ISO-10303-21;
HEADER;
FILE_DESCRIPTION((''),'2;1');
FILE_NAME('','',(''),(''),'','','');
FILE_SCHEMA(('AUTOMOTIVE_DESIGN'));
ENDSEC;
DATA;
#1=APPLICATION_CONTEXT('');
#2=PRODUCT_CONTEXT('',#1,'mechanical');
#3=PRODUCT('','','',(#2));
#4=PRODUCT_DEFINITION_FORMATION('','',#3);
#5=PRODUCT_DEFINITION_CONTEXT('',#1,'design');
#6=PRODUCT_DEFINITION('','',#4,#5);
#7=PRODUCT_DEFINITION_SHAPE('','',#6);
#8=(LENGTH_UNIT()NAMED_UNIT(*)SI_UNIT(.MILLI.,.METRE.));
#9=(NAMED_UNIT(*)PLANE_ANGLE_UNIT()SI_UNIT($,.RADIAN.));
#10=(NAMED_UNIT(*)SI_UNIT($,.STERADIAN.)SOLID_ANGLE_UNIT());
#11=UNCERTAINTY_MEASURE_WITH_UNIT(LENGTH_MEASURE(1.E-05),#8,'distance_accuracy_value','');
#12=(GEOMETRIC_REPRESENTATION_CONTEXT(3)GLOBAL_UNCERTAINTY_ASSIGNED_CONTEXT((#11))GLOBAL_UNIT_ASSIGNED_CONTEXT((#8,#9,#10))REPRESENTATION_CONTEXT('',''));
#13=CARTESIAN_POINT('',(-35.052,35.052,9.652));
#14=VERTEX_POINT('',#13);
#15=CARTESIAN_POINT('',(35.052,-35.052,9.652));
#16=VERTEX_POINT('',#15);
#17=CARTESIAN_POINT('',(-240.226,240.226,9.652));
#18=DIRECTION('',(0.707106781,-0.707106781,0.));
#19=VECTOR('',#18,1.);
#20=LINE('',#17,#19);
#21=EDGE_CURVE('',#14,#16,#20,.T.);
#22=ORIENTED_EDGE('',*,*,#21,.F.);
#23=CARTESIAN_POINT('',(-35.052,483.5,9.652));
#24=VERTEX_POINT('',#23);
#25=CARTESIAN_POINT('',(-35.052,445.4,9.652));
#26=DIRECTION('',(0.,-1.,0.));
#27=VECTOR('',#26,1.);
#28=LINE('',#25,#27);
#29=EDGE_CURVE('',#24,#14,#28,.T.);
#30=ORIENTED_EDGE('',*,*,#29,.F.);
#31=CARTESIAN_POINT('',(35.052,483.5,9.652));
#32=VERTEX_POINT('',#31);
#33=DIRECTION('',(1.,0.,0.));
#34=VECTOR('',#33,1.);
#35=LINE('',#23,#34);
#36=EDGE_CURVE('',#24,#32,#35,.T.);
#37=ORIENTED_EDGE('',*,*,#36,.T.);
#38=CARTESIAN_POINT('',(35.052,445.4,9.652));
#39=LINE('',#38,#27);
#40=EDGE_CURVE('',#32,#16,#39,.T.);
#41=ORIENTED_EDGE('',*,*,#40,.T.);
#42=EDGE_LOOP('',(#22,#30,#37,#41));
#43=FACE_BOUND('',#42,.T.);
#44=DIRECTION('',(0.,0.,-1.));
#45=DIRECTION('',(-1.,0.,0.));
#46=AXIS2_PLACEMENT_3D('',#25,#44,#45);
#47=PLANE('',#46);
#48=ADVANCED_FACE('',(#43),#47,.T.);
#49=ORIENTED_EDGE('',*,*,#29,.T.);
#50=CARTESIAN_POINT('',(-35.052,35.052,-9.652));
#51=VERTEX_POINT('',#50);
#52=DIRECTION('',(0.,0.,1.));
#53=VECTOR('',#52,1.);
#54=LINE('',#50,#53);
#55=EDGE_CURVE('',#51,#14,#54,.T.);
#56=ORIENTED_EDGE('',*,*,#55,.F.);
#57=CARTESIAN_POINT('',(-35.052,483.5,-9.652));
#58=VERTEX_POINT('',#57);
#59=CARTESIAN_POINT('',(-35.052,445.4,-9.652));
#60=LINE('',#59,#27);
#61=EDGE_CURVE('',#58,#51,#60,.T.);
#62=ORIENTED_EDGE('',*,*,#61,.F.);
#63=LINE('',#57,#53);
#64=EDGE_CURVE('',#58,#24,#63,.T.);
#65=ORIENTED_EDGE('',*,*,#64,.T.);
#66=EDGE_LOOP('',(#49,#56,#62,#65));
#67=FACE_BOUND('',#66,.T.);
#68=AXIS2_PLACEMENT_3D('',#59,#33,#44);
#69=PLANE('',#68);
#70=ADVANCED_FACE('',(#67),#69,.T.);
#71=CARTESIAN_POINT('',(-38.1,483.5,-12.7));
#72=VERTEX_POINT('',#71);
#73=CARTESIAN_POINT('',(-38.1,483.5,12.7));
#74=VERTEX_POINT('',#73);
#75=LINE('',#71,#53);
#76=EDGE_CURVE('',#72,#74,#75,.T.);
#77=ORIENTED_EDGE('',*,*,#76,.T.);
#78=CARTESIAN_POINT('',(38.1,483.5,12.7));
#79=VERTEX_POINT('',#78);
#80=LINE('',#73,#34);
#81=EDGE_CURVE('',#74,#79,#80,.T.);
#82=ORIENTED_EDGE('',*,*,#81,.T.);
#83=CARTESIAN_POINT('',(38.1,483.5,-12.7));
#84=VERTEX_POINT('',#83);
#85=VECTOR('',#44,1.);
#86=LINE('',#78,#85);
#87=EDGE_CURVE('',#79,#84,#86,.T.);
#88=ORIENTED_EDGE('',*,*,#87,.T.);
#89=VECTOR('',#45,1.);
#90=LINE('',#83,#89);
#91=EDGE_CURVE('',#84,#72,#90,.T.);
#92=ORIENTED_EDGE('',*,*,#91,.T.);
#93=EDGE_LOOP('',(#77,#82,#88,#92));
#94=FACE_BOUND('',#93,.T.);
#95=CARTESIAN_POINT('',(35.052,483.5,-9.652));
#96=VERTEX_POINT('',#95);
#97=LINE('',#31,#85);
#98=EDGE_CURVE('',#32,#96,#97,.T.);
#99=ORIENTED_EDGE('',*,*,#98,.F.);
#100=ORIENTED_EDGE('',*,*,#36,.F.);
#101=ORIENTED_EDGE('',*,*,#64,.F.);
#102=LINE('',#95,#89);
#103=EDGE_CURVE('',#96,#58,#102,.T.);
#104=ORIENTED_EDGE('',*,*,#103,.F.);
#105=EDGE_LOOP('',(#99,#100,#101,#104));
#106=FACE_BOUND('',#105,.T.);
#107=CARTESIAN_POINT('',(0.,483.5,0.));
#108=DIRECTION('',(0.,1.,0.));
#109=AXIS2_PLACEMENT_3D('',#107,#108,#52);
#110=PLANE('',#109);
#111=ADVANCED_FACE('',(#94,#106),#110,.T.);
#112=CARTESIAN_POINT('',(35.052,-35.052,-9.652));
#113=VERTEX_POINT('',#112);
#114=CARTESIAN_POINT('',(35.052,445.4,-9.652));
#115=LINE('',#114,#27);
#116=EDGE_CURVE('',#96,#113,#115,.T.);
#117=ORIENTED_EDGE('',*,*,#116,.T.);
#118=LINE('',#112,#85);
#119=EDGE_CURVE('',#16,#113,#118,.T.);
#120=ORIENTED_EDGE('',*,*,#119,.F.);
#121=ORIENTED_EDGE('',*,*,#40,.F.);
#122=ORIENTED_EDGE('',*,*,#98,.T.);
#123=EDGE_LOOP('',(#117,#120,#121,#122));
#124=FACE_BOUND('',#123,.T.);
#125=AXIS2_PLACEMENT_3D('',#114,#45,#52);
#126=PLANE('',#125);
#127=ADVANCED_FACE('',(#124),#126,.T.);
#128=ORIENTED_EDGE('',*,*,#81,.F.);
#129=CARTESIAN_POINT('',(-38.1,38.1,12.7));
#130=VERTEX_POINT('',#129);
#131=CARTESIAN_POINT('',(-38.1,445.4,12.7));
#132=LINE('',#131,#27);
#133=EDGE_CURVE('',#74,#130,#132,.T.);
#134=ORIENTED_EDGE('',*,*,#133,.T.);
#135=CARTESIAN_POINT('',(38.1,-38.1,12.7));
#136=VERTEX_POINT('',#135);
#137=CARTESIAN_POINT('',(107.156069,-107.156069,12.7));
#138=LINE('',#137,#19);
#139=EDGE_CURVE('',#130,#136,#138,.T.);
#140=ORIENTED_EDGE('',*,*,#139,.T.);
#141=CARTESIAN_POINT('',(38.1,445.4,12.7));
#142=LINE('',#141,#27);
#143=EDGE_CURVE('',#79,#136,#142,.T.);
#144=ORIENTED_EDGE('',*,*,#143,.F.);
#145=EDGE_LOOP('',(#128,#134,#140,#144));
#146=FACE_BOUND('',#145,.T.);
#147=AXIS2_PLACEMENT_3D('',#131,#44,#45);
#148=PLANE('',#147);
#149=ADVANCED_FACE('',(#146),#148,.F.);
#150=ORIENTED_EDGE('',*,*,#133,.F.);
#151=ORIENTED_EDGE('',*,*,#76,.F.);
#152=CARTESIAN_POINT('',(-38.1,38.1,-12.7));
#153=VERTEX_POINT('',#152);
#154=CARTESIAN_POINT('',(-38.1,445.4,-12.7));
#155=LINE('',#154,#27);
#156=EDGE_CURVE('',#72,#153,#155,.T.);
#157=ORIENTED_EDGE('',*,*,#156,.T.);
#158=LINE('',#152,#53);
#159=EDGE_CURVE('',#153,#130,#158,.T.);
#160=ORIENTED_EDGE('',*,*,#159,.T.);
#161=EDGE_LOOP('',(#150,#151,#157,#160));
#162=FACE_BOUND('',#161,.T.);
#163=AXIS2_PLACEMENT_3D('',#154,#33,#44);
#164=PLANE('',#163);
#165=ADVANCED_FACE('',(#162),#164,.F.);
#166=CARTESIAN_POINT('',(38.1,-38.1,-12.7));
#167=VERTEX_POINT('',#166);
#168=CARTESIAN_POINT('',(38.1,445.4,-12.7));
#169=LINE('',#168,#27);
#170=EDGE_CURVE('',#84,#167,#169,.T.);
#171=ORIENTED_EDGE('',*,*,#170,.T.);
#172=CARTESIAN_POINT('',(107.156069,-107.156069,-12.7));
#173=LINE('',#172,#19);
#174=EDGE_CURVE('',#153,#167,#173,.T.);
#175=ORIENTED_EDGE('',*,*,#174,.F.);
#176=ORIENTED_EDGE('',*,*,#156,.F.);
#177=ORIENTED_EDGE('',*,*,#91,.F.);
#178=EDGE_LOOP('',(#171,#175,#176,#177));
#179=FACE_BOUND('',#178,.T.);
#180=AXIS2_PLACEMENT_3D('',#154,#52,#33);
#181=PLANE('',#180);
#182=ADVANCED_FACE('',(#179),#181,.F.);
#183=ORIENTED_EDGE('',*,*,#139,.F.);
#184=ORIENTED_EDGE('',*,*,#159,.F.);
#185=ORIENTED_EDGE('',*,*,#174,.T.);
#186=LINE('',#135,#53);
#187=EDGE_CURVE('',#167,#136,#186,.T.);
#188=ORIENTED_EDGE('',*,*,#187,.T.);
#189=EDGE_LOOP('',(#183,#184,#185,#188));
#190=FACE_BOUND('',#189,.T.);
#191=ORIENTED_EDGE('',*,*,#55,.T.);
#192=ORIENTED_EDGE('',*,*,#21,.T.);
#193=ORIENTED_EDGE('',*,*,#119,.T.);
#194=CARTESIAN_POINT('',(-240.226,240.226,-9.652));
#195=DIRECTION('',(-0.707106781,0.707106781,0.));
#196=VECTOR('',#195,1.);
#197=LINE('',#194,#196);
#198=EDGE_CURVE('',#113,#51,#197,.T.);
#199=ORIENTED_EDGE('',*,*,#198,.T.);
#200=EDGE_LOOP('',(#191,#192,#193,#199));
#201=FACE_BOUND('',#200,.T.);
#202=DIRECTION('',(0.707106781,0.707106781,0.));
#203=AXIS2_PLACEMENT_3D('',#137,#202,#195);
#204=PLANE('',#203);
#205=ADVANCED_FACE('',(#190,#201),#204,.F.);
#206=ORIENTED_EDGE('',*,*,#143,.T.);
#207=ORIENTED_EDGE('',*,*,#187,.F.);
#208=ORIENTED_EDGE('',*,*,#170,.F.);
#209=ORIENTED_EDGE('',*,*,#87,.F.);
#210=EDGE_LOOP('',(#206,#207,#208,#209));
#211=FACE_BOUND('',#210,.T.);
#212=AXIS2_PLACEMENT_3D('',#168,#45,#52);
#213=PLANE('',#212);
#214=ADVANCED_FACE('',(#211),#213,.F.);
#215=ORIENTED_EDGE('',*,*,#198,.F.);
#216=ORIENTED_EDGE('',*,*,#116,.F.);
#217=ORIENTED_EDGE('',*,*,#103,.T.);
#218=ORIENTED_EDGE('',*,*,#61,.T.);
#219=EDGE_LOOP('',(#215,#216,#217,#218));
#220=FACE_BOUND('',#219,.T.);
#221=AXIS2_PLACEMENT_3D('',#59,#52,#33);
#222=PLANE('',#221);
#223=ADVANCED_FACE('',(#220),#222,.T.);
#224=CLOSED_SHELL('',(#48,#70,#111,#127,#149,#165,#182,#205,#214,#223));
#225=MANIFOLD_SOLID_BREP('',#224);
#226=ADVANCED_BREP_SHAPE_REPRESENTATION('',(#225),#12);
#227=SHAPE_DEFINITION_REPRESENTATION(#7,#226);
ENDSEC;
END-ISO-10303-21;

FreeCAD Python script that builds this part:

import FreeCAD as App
import Part
import Sketcher
Q = App.Units.Quantity


def add_polygon(sketch, points):
    """Adds a closed chain of lines whose ends are joined by coincident constraints."""
    first, n = sketch.GeometryCount, len(points)
    for a, b in zip(points, points[1:] + points[:1]):
        sketch.addGeometry(Part.LineSegment(App.Vector(*a, 0), App.Vector(*b, 0)), False)
    for i in range(n):
        sketch.addConstraint(Sketcher.Constraint("Coincident", first + i, 2, first + (i + 1) % n, 1))

doc = App.newDocument("Part")
body = doc.addObject("PartDesign::Body", "Body")

# Sketch on XZ plane
sketch1 = body.newObject("Sketcher::SketchObject", "Sketch")
sketch1.AttachmentSupport = (doc.getObject("XZ_Plane"), [""])
sketch1.MapMode = "FlatFace"
add_polygon(sketch1, [(-38.1, -12.7), (-38.1, 12.7), (38.1, 12.7), (38.1, -12.7)])  # lines 0-3
add_polygon(sketch1, [(35.052, 9.652), (-35.052, 9.652), (-35.052, -9.652), (35.052, -9.652)])  # lines 4-7
sketch1.addConstraint([
    Sketcher.Constraint("Vertical", 0),
    Sketcher.Constraint("Horizontal", 1),
    Sketcher.Constraint("Vertical", 2),
    Sketcher.Constraint("Horizontal", 3),
    Sketcher.Constraint("Horizontal", 4),
    Sketcher.Constraint("Vertical", 5),
    Sketcher.Constraint("Horizontal", 6),
    Sketcher.Constraint("Vertical", 7),
    Sketcher.Constraint("Symmetric", 0, 2, 2, 2, -1, 1),
    Sketcher.Constraint("Symmetric", 4, 2, 6, 2, -1, 1),
    Sketcher.Constraint("DistanceX", 1, 1, 1, 2, Q("3 in")),
    Sketcher.Constraint("DistanceY", 0, 1, 0, 2, Q("1 in")),
    Sketcher.Constraint("DistanceX", 4, 2, 4, 1, Q("2.76 in")),
    Sketcher.Constraint("DistanceY", 5, 2, 5, 1, Q("0.76 in")),
])
pad1 = body.newObject("PartDesign::Pad", "Pad")
pad1.Profile = sketch1
pad1.Length = 445.4
pad1.Reversed = True

# Sketch on XZ plane
sketch2 = body.newObject("Sketcher::SketchObject", "Sketch001")
sketch2.AttachmentSupport = (doc.getObject("XZ_Plane"), [""])
sketch2.MapMode = "FlatFace"
add_polygon(sketch2, [(-38.1, 12.7), (-38.1, -12.7), (38.1, -12.7), (38.1, 12.7)])  # lines 0-3
add_polygon(sketch2, [(35.052, -9.652), (-35.052, -9.652), (-35.052, 9.652), (35.052, 9.652)])  # lines 4-7
sketch2.addConstraint([
    Sketcher.Constraint("Vertical", 0),
    Sketcher.Constraint("Horizontal", 1),
    Sketcher.Constraint("Vertical", 2),
    Sketcher.Constraint("Horizontal", 3),
    Sketcher.Constraint("Horizontal", 4),
    Sketcher.Constraint("Vertical", 5),
    Sketcher.Constraint("Horizontal", 6),
    Sketcher.Constraint("Vertical", 7),
    Sketcher.Constraint("Symmetric", 0, 2, 2, 2, -1, 1),
    Sketcher.Constraint("Symmetric", 4, 2, 6, 2, -1, 1),
    Sketcher.Constraint("DistanceX", 1, 1, 1, 2, Q("3 in")),
    Sketcher.Constraint("DistanceY", 0, 2, 0, 1, Q("1 in")),
    Sketcher.Constraint("DistanceX", 4, 2, 4, 1, Q("2.76 in")),
    Sketcher.Constraint("DistanceY", 5, 1, 5, 2, Q("0.76 in")),
])
pad2 = body.newObject("PartDesign::Pad", "Pad001")
pad2.Profile = sketch2
pad2.Length = Q("1.5 in")

# Sketch on XZ plane
sketch3 = body.newObject("Sketcher::SketchObject", "Sketch002")
sketch3.AttachmentSupport = (doc.getObject("XZ_Plane"), [""])
sketch3.MapMode = "FlatFace"
sketch3.AttachmentOffset = App.Placement(App.Vector(0, 0, -445.4), App.Rotation())
add_polygon(sketch3, [(-38.1, -12.7), (-38.1, 12.7), (38.1, 12.7), (38.1, -12.7)])  # lines 0-3
add_polygon(sketch3, [(35.052, 9.652), (-35.052, 9.652), (-35.052, -9.652), (35.052, -9.652)])  # lines 4-7
sketch3.addConstraint([
    Sketcher.Constraint("Vertical", 0),
    Sketcher.Constraint("Horizontal", 1),
    Sketcher.Constraint("Vertical", 2),
    Sketcher.Constraint("Horizontal", 3),
    Sketcher.Constraint("Horizontal", 4),
    Sketcher.Constraint("Vertical", 5),
    Sketcher.Constraint("Horizontal", 6),
    Sketcher.Constraint("Vertical", 7),
    Sketcher.Constraint("Symmetric", 0, 2, 2, 2, -1, 1),
    Sketcher.Constraint("Symmetric", 4, 2, 6, 2, -1, 1),
    Sketcher.Constraint("DistanceX", 1, 1, 1, 2, Q("3 in")),
    Sketcher.Constraint("DistanceY", 0, 1, 0, 2, Q("1 in")),
    Sketcher.Constraint("DistanceX", 4, 2, 4, 1, Q("2.76 in")),
    Sketcher.Constraint("DistanceY", 5, 2, 5, 1, Q("0.76 in")),
])
pad3 = body.newObject("PartDesign::Pad", "Pad002")
pad3.Profile = sketch3
pad3.Length = Q("1.5 in")
pad3.Reversed = True

# Sketch on XY plane
sketch4 = body.newObject("Sketcher::SketchObject", "Sketch003")
sketch4.AttachmentSupport = (doc.getObject("XY_Plane"), [""])
sketch4.MapMode = "FlatFace"
add_polygon(sketch4, [(-62.988623, 62.988623), (107.156069, -107.156069), (-62.988623, -107.156069)])  # lines 0-2
sketch4.addConstraint([
    Sketcher.Constraint("Horizontal", 1),
    Sketcher.Constraint("Vertical", 2),
    Sketcher.Constraint("Equal", 1, 2),
    Sketcher.Constraint("Distance", 0, 240.620931),
    Sketcher.Constraint("DistanceX", -1, 1, 0, 2, 107.156069),
    Sketcher.Constraint("DistanceY", 0, 2, -1, 1, 107.156069),
])
pocket1 = body.newObject("PartDesign::Pocket", "Pocket")
pocket1.Profile = sketch4
pocket1.Type = "ThroughAll"
pocket1.Midplane = True

doc.recompute()
